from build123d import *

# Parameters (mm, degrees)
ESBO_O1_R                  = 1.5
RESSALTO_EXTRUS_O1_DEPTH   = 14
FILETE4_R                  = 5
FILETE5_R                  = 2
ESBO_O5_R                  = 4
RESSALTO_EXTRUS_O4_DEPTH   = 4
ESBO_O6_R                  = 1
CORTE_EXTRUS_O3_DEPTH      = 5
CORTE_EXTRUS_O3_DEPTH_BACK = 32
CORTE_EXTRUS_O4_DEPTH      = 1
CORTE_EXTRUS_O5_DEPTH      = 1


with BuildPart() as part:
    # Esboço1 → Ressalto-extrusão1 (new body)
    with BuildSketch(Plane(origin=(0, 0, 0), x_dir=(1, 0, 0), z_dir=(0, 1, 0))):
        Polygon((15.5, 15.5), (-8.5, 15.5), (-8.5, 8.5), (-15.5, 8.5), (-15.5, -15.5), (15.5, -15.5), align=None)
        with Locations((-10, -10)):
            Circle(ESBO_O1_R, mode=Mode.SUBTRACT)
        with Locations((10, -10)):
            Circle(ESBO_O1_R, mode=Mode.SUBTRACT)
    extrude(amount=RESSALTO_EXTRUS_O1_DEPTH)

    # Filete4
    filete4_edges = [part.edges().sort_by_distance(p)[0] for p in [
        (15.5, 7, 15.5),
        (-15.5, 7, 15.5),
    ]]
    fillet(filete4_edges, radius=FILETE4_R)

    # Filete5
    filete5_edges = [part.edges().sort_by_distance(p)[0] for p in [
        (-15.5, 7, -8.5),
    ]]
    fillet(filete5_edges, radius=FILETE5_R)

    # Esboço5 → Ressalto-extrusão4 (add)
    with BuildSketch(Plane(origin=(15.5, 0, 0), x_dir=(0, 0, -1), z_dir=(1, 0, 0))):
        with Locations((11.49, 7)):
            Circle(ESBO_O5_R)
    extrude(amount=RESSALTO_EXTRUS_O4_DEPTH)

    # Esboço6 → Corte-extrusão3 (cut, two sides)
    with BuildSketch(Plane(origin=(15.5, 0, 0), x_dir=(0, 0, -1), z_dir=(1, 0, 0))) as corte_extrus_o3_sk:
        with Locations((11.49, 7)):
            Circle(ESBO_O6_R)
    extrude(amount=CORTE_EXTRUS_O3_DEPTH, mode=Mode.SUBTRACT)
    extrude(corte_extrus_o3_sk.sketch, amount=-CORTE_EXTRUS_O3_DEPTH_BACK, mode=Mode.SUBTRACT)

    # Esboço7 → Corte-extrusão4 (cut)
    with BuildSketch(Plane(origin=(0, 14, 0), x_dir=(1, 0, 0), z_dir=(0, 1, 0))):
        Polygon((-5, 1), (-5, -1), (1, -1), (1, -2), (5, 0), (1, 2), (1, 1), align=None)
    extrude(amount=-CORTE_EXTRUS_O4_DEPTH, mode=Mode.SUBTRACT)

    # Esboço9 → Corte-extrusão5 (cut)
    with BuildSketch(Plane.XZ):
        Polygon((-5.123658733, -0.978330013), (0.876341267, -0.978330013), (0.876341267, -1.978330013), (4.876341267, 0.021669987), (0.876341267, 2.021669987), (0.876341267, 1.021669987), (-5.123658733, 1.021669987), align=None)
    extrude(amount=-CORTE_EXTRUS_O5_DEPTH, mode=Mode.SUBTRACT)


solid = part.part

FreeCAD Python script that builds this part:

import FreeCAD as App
import Part
import Sketcher
from FreeCAD import Vector
Q = App.Units.Quantity


def edges_at(feature, points):
    """Names of the edges that pass closest to the given points."""
    edges = feature.Shape.Edges
    near = lambda p: min(range(len(edges)), key=lambda i: edges[i].distToShape(Part.Vertex(*p))[0])
    return sorted({f"Edge{near(p) + 1}" for p in points})


def add_polygon(sketch, points):
    """Adds a closed chain of lines whose ends are joined by coincident constraints."""
    first, n = sketch.GeometryCount, len(points)
    for a, b in zip(points, points[1:] + points[:1]):
        sketch.addGeometry(Part.LineSegment(App.Vector(*a, 0), App.Vector(*b, 0)), False)
    for i in range(n):
        sketch.addConstraint(Sketcher.Constraint("Coincident", first + i, 2, first + (i + 1) % n, 1))

doc = App.newDocument("Part")
body = doc.addObject("PartDesign::Body", "Body")

sketch1 = body.newObject("Sketcher::SketchObject", "Sketch")
sketch1.AttachmentSupport = (doc.getObject("XZ_Plane"), [""])
sketch1.MapMode = "FlatFace"
add_polygon(sketch1, [(15.5, -15.5), (-8.5, -15.5), (-8.5, -8.5), (-15.5, -8.5), (-15.5, 15.5), (15.5, 15.5)])
sketch1.addGeometry(Part.Circle(Vector(-10, 10, 0), Vector(0, 0, 1), 1.5), False)
sketch1.addGeometry(Part.Circle(Vector(10, 10, 0), Vector(0, 0, 1), 1.5), False)
sketch1.addConstraint([
    Sketcher.Constraint("Horizontal", 0),
    Sketcher.Constraint("Vertical", 1),
    Sketcher.Constraint("Horizontal", 2),
    Sketcher.Constraint("Vertical", 3),
    Sketcher.Constraint("Horizontal", 4),
    Sketcher.Constraint("Vertical", 5),
    Sketcher.Constraint("Equal", 6, 7),
    Sketcher.Constraint("Symmetric", 3, 2, 5, 2, -1, 1),
    Sketcher.Constraint("Symmetric", 6, 3, 7, 3, -2),
    Sketcher.Constraint("Equal", 2, 1),
    Sketcher.Constraint("Equal", 0, 3),
    Sketcher.Constraint("Diameter", 6, Q("3 mm")),
    Sketcher.Constraint("DistanceX", 0, 2, 0, 1, Q("24 mm")),
    Sketcher.Constraint("DistanceX", 2, 2, 2, 1, Q("7 mm")),
    Sketcher.Constraint("DistanceX", 6, 3, -1, 1, Q("10 mm")),
    Sketcher.Constraint("DistanceY", -1, 1, 6, 3, Q("10 mm")),
])
pad1 = body.newObject("PartDesign::Pad", "Pad")
pad1.Profile = sketch1
pad1.Length = 14
pad1.Reversed = True
doc.recompute()

fillet = body.newObject("PartDesign::Fillet", "Fillet")
fillet.Base = (pad1, edges_at(pad1, [(15.5, 7, 15.5), (-15.5, 7, 15.5)]))
fillet.Radius = 5
doc.recompute()

fillet2 = body.newObject("PartDesign::Fillet", "Fillet001")
fillet2.Base = (fillet, edges_at(fillet, [(-15.5, 7, -8.5)]))
fillet2.Radius = 2

sketch2 = body.newObject("Sketcher::SketchObject", "Sketch001")
sketch2.AttachmentSupport = (doc.getObject("YZ_Plane"), [""])
sketch2.MapMode = "FlatFace"
sketch2.AttachmentOffset = App.Placement(Vector(0, 0, 15.5), App.Rotation())
sketch2.addGeometry(Part.Circle(Vector(7, -11.5, 0), Vector(0, 0, 1), 4), False)
sketch2.addConstraint([
    Sketcher.Constraint("Diameter", 0, Q("8 mm")),
    Sketcher.Constraint("DistanceX", -1, 1, 0, 3, Q("7 mm")),
    Sketcher.Constraint("DistanceY", 0, 3, -1, 1, Q("11.49 mm")),
])
pad2 = body.newObject("PartDesign::Pad", "Pad001")
pad2.Profile = sketch2
pad2.Length = 4

sketch3 = body.newObject("Sketcher::SketchObject", "Sketch002")
sketch3.AttachmentSupport = (doc.getObject("YZ_Plane"), [""])
sketch3.MapMode = "FlatFace"
sketch3.AttachmentOffset = App.Placement(Vector(0, 0, 15.5), App.Rotation())
sketch3.addGeometry(Part.Circle(Vector(7, -11.5, 0), Vector(0, 0, 1), 1), False)
sketch3.addConstraint([
    Sketcher.Constraint("Diameter", 0, Q("2 mm")),
    Sketcher.Constraint("DistanceX", -1, 1, 0, 3, Q("7 mm")),
    Sketcher.Constraint("DistanceY", 0, 3, -1, 1, Q("11.49 mm")),
])
pocket1 = body.newObject("PartDesign::Pocket", "Pocket")
pocket1.Profile = sketch3
pocket1.Type = "ThroughAll"
pocket1.Midplane = True

sketch4 = body.newObject("Sketcher::SketchObject", "Sketch003")
sketch4.AttachmentSupport = (doc.getObject("XZ_Plane"), [""])
sketch4.MapMode = "FlatFace"
sketch4.AttachmentOffset = App.Placement(Vector(0, 0, -14), App.Rotation())
add_polygon(sketch4, [(-5, -1), (-5, 1), (1, 1), (1, 2), (5, 0), (1, -2), (1, -1)])
sketch4.addConstraint([
    Sketcher.Constraint("Vertical", 0),
    Sketcher.Constraint("Horizontal", 1),
    Sketcher.Constraint("Vertical", 2),
    Sketcher.Constraint("Vertical", 5),
    Sketcher.Constraint("Horizontal", 6),
    Sketcher.Constraint("Symmetric", 2, 2, 4, 2, -1),
    Sketcher.Constraint("PointOnObject", 3, 2, -1),
    Sketcher.Constraint("Equal", 2, 5),
    Sketcher.Constraint("DistanceX", 1, 1, 1, 2, Q("6 mm")),
    Sketcher.Constraint("DistanceY", 0, 1, 0, 2, Q("2 mm")),
    Sketcher.Constraint("DistanceY", 2, 1, 2, 2, Q("1 mm")),
    Sketcher.Constraint("DistanceX", 0, 2, -1, 1, Q("5 mm")),
    Sketcher.Constraint("DistanceX", -1, 1, 3, 2, Q("5 mm")),
])
pocket2 = body.newObject("PartDesign::Pocket", "Pocket001")
pocket2.Profile = sketch4
pocket2.Length = 1
pocket2.Reversed = True

sketch5 = body.newObject("Sketcher::SketchObject", "Sketch004")
sketch5.AttachmentSupport = (doc.getObject("XZ_Plane"), [""])
sketch5.MapMode = "FlatFace"
add_polygon(sketch5, [(-5.1, -1), (0.9, -1), (0.9, -2), (4.9, 0), (0.9, 2), (0.9, 1), (-5.1, 1)])
sketch5.addConstraint([
    Sketcher.Constraint("Horizontal", 0),
    Sketcher.Constraint("Vertical", 1),
    Sketcher.Constraint("Vertical", 4),
    Sketcher.Constraint("Horizontal", 5),
    Sketcher.Constraint("Vertical", 6),
    Sketcher.Constraint("Vertical", 1, 2, 3, 2),
    Sketcher.Constraint("Equal", 1, 4),
    Sketcher.Constraint("Equal", 2, 3),
    Sketcher.Constraint("DistanceX", 0, 1, 0, 2, Q("6 mm")),
    Sketcher.Constraint("DistanceY", 1, 2, 1, 1, Q("1 mm")),
    Sketcher.Constraint("DistanceY", 6, 2, 6, 1, Q("2 mm")),
    Sketcher.Constraint("DistanceX", 0, 2, 2, 2, Q("4 mm")),
    Sketcher.Constraint("DistanceX", -1, 1, 0, 2, Q("0.876341 mm")),
    Sketcher.Constraint("DistanceY", 0, 2, -1, 1, Q("0.97833 mm")),
])
pocket3 = body.newObject("PartDesign::Pocket", "Pocket002")
pocket3.Profile = sketch5
pocket3.Length = 1

doc.recompute()
